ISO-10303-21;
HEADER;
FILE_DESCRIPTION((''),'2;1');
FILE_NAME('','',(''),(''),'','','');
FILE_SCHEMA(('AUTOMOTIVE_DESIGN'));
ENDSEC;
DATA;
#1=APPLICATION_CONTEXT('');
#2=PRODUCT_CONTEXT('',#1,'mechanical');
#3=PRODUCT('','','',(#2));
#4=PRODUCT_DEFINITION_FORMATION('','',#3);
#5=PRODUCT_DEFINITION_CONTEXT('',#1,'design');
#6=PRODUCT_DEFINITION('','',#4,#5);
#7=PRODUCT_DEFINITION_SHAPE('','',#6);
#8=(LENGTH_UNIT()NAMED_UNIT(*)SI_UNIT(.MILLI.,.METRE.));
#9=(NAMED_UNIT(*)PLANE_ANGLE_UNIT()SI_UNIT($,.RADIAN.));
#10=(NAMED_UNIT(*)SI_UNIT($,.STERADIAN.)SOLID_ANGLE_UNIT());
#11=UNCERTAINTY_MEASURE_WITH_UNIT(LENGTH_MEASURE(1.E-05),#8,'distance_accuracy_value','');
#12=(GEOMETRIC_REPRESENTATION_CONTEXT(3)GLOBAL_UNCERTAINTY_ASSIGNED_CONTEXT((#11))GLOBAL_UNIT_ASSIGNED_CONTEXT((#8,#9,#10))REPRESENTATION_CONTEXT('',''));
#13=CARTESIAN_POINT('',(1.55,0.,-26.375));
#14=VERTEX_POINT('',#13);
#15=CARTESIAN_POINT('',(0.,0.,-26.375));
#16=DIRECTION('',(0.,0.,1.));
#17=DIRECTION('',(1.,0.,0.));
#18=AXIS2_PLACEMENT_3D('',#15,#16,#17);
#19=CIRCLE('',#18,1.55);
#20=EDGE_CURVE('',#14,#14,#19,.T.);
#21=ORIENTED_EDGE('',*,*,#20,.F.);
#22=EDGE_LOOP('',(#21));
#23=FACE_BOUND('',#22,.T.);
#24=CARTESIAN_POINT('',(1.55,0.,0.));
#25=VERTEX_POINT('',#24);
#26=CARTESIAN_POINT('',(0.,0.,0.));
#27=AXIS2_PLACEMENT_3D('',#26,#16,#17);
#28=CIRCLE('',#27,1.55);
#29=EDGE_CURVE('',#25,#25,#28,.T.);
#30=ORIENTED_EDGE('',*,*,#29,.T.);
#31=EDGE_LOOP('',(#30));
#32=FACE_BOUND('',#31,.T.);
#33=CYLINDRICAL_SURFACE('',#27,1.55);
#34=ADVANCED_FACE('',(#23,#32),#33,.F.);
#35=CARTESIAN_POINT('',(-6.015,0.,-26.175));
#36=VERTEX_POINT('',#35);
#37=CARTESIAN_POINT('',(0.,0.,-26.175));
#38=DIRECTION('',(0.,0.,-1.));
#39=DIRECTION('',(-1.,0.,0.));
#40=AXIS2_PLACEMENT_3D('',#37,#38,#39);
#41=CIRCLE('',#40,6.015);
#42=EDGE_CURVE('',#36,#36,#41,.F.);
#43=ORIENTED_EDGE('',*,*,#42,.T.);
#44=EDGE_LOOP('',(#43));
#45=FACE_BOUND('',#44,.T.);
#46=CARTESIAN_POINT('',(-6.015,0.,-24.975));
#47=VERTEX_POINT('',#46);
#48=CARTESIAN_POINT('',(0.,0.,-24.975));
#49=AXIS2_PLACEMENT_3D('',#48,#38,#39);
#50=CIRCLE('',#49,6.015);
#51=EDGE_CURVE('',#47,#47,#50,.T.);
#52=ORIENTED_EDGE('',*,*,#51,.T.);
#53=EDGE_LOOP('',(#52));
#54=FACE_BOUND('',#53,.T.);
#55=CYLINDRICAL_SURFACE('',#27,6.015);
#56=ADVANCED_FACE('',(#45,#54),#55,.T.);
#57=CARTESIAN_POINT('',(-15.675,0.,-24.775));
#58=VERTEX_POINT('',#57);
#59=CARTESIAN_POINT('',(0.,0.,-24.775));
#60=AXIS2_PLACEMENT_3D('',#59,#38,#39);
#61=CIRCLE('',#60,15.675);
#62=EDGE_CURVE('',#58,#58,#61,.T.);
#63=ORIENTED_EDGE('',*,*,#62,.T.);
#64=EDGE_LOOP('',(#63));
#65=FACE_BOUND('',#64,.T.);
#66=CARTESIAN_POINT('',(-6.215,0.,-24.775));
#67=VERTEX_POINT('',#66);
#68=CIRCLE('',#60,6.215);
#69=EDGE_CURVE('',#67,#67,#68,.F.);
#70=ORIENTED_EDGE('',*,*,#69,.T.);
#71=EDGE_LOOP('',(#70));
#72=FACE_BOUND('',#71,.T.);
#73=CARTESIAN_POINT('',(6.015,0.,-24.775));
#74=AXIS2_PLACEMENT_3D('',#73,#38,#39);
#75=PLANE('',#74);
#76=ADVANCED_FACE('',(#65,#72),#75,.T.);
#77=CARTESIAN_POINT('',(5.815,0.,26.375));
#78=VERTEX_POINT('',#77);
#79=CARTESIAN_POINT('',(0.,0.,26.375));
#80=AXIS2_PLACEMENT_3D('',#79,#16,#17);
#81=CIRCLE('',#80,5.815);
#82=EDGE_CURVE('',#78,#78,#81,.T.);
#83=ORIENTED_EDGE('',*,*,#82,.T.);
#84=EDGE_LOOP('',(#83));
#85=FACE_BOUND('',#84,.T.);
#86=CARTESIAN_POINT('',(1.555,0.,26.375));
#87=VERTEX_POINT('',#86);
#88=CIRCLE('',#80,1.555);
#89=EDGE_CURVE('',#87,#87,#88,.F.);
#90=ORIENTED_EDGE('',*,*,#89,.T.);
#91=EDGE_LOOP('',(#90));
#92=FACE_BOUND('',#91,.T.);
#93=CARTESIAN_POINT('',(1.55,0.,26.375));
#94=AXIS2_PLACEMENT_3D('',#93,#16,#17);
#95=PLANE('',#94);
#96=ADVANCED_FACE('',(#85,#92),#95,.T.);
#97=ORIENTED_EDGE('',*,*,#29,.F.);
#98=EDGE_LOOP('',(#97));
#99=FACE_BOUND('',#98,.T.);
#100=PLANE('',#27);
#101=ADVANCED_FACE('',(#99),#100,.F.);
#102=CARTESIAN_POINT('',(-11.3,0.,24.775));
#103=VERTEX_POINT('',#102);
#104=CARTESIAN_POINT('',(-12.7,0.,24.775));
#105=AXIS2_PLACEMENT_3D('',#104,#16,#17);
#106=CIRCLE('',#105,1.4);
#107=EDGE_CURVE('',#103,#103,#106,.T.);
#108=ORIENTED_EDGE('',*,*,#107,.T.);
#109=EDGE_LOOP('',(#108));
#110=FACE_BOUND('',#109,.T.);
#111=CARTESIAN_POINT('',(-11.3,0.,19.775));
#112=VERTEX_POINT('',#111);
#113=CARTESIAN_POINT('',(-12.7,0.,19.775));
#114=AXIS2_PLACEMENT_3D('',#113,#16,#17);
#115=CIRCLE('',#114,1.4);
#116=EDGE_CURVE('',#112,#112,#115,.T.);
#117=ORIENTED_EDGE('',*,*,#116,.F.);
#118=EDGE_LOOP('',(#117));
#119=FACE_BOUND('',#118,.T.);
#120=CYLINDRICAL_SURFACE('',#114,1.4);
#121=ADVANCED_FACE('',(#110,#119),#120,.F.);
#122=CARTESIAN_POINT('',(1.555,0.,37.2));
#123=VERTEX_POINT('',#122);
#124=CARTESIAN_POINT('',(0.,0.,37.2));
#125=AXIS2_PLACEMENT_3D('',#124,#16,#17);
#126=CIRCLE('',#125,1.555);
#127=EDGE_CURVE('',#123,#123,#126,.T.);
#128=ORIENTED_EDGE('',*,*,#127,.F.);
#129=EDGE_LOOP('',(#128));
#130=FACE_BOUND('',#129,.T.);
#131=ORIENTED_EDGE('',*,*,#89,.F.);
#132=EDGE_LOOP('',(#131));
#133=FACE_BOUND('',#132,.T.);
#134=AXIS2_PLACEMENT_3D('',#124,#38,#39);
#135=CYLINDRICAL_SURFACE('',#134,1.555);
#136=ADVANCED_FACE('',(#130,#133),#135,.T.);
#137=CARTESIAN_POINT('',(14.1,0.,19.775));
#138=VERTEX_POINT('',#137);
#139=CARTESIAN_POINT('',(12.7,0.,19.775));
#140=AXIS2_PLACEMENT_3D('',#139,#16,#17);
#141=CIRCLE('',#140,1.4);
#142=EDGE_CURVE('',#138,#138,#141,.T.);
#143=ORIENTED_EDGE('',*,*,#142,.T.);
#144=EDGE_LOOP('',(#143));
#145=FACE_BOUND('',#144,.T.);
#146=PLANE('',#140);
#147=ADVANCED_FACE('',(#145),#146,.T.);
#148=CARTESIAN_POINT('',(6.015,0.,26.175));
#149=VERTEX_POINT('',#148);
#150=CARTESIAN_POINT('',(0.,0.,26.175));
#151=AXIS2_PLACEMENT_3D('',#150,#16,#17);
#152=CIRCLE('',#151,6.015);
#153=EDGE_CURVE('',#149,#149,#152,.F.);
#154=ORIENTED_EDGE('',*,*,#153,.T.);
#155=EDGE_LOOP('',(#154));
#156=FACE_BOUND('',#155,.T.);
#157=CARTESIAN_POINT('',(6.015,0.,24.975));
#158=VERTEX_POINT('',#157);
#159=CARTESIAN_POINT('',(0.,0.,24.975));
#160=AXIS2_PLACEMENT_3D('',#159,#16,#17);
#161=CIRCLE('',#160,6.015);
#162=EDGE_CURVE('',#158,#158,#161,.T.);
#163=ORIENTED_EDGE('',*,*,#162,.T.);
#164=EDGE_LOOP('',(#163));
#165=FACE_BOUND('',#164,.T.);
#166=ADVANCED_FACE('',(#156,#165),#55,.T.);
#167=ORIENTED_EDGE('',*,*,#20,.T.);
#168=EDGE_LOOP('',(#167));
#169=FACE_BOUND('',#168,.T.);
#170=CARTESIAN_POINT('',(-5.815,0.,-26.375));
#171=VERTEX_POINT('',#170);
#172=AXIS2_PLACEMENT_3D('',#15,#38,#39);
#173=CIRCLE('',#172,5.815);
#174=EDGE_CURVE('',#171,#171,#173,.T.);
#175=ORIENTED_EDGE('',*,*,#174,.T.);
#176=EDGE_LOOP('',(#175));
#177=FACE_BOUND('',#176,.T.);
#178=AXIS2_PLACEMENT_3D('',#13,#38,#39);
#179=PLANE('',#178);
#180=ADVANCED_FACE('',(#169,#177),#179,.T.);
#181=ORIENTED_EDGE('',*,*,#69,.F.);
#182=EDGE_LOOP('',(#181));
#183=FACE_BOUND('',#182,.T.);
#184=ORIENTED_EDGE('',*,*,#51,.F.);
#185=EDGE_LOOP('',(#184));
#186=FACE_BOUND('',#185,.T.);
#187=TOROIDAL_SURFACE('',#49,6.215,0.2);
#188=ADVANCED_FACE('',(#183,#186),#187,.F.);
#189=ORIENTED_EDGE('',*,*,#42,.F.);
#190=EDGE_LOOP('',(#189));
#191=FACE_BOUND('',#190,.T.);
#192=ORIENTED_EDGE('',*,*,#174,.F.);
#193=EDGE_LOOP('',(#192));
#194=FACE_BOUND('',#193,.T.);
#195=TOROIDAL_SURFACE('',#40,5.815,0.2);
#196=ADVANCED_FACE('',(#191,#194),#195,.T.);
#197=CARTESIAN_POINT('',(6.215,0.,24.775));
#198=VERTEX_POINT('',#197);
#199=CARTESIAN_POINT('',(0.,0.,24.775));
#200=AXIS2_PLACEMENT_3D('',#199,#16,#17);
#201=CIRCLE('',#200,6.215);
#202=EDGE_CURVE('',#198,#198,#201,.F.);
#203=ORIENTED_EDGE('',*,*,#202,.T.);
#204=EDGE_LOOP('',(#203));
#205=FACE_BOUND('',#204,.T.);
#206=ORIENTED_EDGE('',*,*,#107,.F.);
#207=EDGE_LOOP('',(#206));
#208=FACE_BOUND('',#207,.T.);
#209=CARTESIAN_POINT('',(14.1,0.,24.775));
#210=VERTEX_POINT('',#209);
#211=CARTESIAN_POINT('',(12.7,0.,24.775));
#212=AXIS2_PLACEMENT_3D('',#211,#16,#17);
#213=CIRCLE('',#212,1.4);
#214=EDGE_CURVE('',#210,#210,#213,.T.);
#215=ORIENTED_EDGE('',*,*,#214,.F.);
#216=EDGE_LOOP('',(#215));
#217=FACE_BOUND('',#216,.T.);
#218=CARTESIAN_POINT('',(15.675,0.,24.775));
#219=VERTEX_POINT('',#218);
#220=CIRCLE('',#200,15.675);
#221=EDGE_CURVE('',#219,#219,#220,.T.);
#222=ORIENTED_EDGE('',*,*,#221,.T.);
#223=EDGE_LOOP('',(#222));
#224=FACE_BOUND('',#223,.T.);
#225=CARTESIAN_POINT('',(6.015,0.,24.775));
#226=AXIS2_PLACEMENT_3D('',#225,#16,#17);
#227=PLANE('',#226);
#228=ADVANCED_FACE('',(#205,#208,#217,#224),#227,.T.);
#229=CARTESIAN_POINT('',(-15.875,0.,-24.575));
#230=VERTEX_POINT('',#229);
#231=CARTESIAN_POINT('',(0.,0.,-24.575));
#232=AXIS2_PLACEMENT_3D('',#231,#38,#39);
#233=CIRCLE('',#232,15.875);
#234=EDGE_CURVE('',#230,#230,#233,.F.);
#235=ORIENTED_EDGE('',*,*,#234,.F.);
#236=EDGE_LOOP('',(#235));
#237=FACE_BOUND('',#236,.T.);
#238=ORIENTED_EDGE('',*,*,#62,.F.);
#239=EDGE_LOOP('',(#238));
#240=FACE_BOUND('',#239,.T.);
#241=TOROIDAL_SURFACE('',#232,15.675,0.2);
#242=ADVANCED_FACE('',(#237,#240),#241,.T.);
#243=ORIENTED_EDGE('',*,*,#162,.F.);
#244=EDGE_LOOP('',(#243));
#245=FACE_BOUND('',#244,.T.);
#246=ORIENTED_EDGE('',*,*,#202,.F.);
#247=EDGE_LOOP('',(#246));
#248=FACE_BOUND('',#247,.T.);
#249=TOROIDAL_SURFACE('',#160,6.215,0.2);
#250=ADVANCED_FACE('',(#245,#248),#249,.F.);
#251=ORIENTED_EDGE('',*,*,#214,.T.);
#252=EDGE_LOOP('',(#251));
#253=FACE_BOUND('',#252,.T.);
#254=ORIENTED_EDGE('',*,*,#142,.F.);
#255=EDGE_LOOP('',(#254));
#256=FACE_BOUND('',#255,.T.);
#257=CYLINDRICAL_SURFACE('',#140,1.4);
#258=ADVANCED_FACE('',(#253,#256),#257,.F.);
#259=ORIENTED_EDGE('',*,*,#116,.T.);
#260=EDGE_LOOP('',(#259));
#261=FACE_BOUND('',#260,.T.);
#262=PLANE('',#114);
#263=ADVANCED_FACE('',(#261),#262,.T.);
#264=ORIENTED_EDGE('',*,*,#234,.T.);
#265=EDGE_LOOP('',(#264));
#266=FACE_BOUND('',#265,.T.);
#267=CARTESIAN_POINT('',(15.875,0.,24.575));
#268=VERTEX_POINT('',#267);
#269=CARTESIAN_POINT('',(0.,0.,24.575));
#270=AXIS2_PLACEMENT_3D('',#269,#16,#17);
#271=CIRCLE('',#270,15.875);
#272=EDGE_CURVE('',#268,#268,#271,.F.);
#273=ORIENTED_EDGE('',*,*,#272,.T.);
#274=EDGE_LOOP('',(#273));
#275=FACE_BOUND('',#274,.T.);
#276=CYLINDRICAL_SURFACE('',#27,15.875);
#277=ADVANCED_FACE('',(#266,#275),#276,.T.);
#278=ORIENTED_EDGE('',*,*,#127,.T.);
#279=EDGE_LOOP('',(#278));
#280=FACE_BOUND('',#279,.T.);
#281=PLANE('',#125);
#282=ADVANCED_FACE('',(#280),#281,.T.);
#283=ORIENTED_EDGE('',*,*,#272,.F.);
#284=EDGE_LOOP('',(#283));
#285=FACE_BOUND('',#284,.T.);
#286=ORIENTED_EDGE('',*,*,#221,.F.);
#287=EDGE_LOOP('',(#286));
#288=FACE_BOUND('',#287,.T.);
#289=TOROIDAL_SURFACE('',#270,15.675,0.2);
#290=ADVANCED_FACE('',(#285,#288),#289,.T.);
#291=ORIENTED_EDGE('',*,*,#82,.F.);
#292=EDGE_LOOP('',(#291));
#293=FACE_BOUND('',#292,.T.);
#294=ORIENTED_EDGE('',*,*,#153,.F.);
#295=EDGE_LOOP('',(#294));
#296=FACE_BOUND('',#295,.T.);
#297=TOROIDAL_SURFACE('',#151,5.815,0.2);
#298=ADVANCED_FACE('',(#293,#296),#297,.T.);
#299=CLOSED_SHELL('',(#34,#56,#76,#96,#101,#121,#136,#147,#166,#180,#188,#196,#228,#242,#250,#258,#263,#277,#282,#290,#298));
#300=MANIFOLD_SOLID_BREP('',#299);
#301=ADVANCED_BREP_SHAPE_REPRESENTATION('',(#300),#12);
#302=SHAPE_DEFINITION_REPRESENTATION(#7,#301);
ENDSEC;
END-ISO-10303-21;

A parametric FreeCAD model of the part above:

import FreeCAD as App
import Part
import Sketcher

V = App.Vector
Q = App.Units.Quantity


def edges_at(feature, points):
    """Names of the edges that pass closest to the given points."""
    edges = feature.Shape.Edges
    near = lambda p: min(range(len(edges)), key=lambda i: edges[i].distToShape(Part.Vertex(*p))[0])
    return sorted({f"Edge{near(p) + 1}" for p in points})


def add_polygon(sketch, points):
    """Adds a closed chain of lines whose ends are joined by coincident constraints."""
    first, n = sketch.GeometryCount, len(points)
    for a, b in zip(points, points[1:] + points[:1]):
        sketch.addGeometry(Part.LineSegment(App.Vector(*a, 0), App.Vector(*b, 0)), False)
    for i in range(n):
        sketch.addConstraint(Sketcher.Constraint("Coincident", first + i, 2, first + (i + 1) % n, 1))

doc = App.newDocument("Part")
body = doc.addObject("PartDesign::Body", "Body")

sketch1 = body.newObject("Sketcher::SketchObject", "Sketch")
sketch1.AttachmentSupport = (doc.getObject("XZ_Plane"), [""])
sketch1.MapMode = "FlatFace"
add_polygon(sketch1, [(1.6, -26.4), (1.6, 26.4), (6, 26.4), (6, 24.8), (15.9, 24.8), (15.9, -24.8), (6, -24.8), (6, -26.4)])
sketch1.addConstraint([
    Sketcher.Constraint("Vertical", 0),
    Sketcher.Constraint("Horizontal", 1),
    Sketcher.Constraint("Vertical", 2),
    Sketcher.Constraint("Horizontal", 3),
    Sketcher.Constraint("Vertical", 4),
    Sketcher.Constraint("Horizontal", 5),
    Sketcher.Constraint("Vertical", 6),
    Sketcher.Constraint("Horizontal", 7),
    Sketcher.Constraint("Symmetric", 2, 2, 5, 2, -1),
    Sketcher.Constraint("Equal", 2, 6),
    Sketcher.Constraint("DistanceY", 2, 2, 2, 1, Q("1.6 mm")),
    Sketcher.Constraint("DistanceX", 3, 1, 3, 2, Q("9.86 mm")),
    Sketcher.Constraint("DistanceY", 0, 1, 0, 2, Q("52.75 mm")),
    Sketcher.Constraint("DistanceX", 1, 1, 1, 2, Q("4.465 mm")),
    Sketcher.Constraint("DistanceX", -1, 1, 0, 2, Q("1.55 mm")),
])
revolution = body.newObject("PartDesign::Revolution", "Revolution")
revolution.Profile = sketch1
revolution.ReferenceAxis = (sketch1, ["V_Axis"])
revolution.Angle = 360

sketch2 = body.newObject("Sketcher::SketchObject", "Sketch001")
sketch2.AttachmentSupport = (doc.getObject("XY_Plane"), [""])
sketch2.MapMode = "FlatFace"
sketch2.addGeometry(Part.Circle(V(0, 0, 0), V(0, 0, 1), 1.6), False)
sketch2.addConstraint([
    Sketcher.Constraint("Coincident", 0, 3, -1, 1),
    Sketcher.Constraint("Diameter", 0, Q("3.11 mm")),
])
pad1 = body.newObject("PartDesign::Pad", "Pad")
pad1.Profile = sketch2
pad1.Length = 37.2
doc.recompute()

fillet = body.newObject("PartDesign::Fillet", "Fillet")
fillet.Base = (pad1, edges_at(pad1, [
    (-6.015, 0, 26.375),
    (-6.015, 0, 24.775),
    (-15.875, 0, 24.775),
    (-15.875, 0, -24.775),
    (-6.015, 0, -24.775),
    (-6.015, 0, -26.375),
]))
fillet.Radius = 0.2

sketch3 = body.newObject("Sketcher::SketchObject", "Sketch002")
sketch3.AttachmentSupport = (doc.getObject("XY_Plane"), [""])
sketch3.MapMode = "FlatFace"
sketch3.AttachmentOffset = App.Placement(V(0, 0, 24.775), App.Rotation())
sketch3.addGeometry([
    Part.Circle(V(-12.7, 0, 0), V(0, 0, 1), 1.4),
    Part.Circle(V(12.7, 0, 0), V(0, 0, 1), 1.4),
], False)
sketch3.addConstraint([
    Sketcher.Constraint("Equal", 0, 1),
    Sketcher.Constraint("Symmetric", 0, 3, 1, 3, -1, 1),
    Sketcher.Constraint("PointOnObject", 0, 3, -1),
    Sketcher.Constraint("Diameter", 0, Q("2.8 mm")),
    Sketcher.Constraint("DistanceX", 0, 3, -1, 1, Q("12.7 mm")),
])
pocket1 = body.newObject("PartDesign::Pocket", "Pocket")
pocket1.Profile = sketch3
pocket1.Length = 5

doc.recompute()
